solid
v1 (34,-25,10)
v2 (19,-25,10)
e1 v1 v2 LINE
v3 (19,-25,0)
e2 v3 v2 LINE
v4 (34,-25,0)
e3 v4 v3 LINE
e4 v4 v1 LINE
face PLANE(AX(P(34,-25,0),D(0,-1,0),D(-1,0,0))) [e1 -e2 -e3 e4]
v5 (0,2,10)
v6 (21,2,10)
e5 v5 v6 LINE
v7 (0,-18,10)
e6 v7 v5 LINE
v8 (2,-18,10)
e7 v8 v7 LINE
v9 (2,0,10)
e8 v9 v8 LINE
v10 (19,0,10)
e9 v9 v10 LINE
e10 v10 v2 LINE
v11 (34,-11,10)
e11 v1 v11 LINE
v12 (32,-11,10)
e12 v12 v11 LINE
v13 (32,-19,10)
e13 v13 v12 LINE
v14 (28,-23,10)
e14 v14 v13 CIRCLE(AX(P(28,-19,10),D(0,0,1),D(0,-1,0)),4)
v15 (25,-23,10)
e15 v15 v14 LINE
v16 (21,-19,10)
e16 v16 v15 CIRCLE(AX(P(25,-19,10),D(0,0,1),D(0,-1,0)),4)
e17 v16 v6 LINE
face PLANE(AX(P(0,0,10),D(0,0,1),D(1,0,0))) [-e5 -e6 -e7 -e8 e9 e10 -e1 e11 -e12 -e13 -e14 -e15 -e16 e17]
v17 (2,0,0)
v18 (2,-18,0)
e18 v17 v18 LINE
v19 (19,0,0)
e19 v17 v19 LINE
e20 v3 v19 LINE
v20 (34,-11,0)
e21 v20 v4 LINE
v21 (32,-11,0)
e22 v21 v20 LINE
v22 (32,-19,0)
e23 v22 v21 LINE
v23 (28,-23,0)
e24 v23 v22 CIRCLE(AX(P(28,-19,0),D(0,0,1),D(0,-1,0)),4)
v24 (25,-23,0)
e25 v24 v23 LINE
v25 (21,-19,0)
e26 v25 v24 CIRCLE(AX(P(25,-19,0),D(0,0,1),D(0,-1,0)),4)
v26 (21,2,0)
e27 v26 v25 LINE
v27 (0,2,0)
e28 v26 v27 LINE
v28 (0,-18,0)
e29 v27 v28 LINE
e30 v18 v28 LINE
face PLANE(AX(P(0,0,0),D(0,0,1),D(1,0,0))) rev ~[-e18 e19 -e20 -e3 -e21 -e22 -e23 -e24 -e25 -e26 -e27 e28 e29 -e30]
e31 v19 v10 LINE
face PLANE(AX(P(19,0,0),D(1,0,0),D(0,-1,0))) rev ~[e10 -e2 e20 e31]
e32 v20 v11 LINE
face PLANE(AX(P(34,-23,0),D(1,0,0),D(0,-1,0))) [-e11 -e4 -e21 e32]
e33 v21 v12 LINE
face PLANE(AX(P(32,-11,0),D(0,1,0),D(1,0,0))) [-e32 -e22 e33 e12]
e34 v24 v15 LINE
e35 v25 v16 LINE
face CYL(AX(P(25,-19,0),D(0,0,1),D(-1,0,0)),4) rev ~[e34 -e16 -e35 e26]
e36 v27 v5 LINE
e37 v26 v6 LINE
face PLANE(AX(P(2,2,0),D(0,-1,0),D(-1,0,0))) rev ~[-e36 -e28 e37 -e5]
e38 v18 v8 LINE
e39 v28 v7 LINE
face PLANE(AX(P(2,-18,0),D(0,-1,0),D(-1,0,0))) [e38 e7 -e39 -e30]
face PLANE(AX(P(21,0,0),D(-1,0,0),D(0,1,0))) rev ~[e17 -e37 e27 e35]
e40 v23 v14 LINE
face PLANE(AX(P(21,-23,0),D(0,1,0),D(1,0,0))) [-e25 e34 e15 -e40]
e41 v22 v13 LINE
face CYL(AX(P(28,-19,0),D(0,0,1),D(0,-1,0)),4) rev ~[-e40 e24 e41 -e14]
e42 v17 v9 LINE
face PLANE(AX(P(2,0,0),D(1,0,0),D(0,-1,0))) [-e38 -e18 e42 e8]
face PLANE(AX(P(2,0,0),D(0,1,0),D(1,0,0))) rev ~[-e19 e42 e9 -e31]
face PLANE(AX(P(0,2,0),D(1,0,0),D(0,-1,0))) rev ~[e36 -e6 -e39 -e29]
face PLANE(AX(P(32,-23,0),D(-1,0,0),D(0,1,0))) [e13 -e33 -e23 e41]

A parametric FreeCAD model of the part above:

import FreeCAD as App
import Part
import Sketcher
Q = App.Units.Quantity


def edges_at(feature, points):
    """Names of the edges that pass closest to the given points."""
    edges = feature.Shape.Edges
    near = lambda p: min(range(len(edges)), key=lambda i: edges[i].distToShape(Part.Vertex(*p))[0])
    return sorted({f"Edge{near(p) + 1}" for p in points})


def add_polygon(sketch, points):
    """Adds a closed chain of lines whose ends are joined by coincident constraints."""
    first, n = sketch.GeometryCount, len(points)
    for a, b in zip(points, points[1:] + points[:1]):
        sketch.addGeometry(Part.LineSegment(App.Vector(*a, 0), App.Vector(*b, 0)), False)
    for i in range(n):
        sketch.addConstraint(Sketcher.Constraint("Coincident", first + i, 2, first + (i + 1) % n, 1))

doc = App.newDocument("Part")
params = doc.addObject("Spreadsheet::Sheet", "Params")
for row, (alias, value) in enumerate([
    ("sketch1_width", "2 mm"),
    ("sketch1_width2", "15 mm"),
    ("sketch1_width3", "21 mm"),
    ("sketch1_height", "20 mm"),
    ("sketch1_height2", "25 mm"),
    ("pad1_length", "10 mm"),
    ("fillet_radius", "4 mm"),
], start=1):
    params.set(f"A{row}", alias)
    params.set(f"B{row}", "=" + value)
    params.setAlias(f"B{row}", alias)

body = doc.addObject("PartDesign::Body", "Body")

# Sketch on XY plane
sketch1 = doc.addObject("Sketcher::SketchObject", "Sketch")
body.addObject(sketch1)
sketch1.AttachmentSupport = (doc.XY_Plane, [""])
sketch1.MapMode = "FlatFace"
add_polygon(sketch1, [(0, 2), (0, -18), (2, -18), (2, 0), (19, 0), (19, -25), (34, -25), (34, -11), (32, -11), (32, -23), (21, -23), (21, 2)])  # lines 0-11
sketch1.addConstraint([
    Sketcher.Constraint("Vertical", 0),
    Sketcher.Constraint("Horizontal", 1),
    Sketcher.Constraint("Vertical", 2),
    Sketcher.Constraint("Horizontal", 3),
    Sketcher.Constraint("Vertical", 4),
    Sketcher.Constraint("Horizontal", 5),
    Sketcher.Constraint("Vertical", 6),
    Sketcher.Constraint("Horizontal", 7),
    Sketcher.Constraint("Vertical", 8),
    Sketcher.Constraint("Horizontal", 9),
    Sketcher.Constraint("Vertical", 10),
    Sketcher.Constraint("Horizontal", 11),
    Sketcher.Constraint("PointOnObject", 0, 2, -2),
    Sketcher.Constraint("PointOnObject", 2, 2, -1),
    Sketcher.Constraint("Equal", 1, 7),
    Sketcher.Constraint("Equal", 4, 10),
    Sketcher.Constraint("DistanceX", 1, 1, 1, 2, Q("2 mm")),
    Sketcher.Constraint("DistanceX", 5, 1, 5, 2, Q("15 mm")),
    Sketcher.Constraint("DistanceX", 11, 2, 11, 1, Q("21 mm")),
    Sketcher.Constraint("DistanceY", 0, 2, 0, 1, Q("20 mm")),
    Sketcher.Constraint("DistanceY", 4, 2, 4, 1, Q("25 mm")),
    Sketcher.Constraint("DistanceY", 8, 2, 8, 1, Q("12 mm")),
    Sketcher.Constraint("DistanceY", -1, 1, 10, 2, Q("2 mm")),
    Sketcher.Constraint("DistanceX", 4, 2, 9, 2, Q("2 mm")),
])
sketch1.setExpression("Constraints[28]", "Params.sketch1_width")
sketch1.setExpression("Constraints[29]", "Params.sketch1_width2")
sketch1.setExpression("Constraints[30]", "Params.sketch1_width3")
sketch1.setExpression("Constraints[31]", "Params.sketch1_height")
sketch1.setExpression("Constraints[32]", "Params.sketch1_height2")
pad1 = doc.addObject("PartDesign::Pad", "Pad")
body.addObject(pad1)
pad1.Profile = sketch1
pad1.setExpression("Length", "Params.pad1_length")
doc.recompute()

fillet = doc.addObject("PartDesign::Fillet", "Fillet")
body.addObject(fillet)
fillet.Base = (pad1, edges_at(pad1, [(21, -23, 5), (32, -23, 5)]))
fillet.setExpression("Radius", "Params.fillet_radius")

doc.recompute()
